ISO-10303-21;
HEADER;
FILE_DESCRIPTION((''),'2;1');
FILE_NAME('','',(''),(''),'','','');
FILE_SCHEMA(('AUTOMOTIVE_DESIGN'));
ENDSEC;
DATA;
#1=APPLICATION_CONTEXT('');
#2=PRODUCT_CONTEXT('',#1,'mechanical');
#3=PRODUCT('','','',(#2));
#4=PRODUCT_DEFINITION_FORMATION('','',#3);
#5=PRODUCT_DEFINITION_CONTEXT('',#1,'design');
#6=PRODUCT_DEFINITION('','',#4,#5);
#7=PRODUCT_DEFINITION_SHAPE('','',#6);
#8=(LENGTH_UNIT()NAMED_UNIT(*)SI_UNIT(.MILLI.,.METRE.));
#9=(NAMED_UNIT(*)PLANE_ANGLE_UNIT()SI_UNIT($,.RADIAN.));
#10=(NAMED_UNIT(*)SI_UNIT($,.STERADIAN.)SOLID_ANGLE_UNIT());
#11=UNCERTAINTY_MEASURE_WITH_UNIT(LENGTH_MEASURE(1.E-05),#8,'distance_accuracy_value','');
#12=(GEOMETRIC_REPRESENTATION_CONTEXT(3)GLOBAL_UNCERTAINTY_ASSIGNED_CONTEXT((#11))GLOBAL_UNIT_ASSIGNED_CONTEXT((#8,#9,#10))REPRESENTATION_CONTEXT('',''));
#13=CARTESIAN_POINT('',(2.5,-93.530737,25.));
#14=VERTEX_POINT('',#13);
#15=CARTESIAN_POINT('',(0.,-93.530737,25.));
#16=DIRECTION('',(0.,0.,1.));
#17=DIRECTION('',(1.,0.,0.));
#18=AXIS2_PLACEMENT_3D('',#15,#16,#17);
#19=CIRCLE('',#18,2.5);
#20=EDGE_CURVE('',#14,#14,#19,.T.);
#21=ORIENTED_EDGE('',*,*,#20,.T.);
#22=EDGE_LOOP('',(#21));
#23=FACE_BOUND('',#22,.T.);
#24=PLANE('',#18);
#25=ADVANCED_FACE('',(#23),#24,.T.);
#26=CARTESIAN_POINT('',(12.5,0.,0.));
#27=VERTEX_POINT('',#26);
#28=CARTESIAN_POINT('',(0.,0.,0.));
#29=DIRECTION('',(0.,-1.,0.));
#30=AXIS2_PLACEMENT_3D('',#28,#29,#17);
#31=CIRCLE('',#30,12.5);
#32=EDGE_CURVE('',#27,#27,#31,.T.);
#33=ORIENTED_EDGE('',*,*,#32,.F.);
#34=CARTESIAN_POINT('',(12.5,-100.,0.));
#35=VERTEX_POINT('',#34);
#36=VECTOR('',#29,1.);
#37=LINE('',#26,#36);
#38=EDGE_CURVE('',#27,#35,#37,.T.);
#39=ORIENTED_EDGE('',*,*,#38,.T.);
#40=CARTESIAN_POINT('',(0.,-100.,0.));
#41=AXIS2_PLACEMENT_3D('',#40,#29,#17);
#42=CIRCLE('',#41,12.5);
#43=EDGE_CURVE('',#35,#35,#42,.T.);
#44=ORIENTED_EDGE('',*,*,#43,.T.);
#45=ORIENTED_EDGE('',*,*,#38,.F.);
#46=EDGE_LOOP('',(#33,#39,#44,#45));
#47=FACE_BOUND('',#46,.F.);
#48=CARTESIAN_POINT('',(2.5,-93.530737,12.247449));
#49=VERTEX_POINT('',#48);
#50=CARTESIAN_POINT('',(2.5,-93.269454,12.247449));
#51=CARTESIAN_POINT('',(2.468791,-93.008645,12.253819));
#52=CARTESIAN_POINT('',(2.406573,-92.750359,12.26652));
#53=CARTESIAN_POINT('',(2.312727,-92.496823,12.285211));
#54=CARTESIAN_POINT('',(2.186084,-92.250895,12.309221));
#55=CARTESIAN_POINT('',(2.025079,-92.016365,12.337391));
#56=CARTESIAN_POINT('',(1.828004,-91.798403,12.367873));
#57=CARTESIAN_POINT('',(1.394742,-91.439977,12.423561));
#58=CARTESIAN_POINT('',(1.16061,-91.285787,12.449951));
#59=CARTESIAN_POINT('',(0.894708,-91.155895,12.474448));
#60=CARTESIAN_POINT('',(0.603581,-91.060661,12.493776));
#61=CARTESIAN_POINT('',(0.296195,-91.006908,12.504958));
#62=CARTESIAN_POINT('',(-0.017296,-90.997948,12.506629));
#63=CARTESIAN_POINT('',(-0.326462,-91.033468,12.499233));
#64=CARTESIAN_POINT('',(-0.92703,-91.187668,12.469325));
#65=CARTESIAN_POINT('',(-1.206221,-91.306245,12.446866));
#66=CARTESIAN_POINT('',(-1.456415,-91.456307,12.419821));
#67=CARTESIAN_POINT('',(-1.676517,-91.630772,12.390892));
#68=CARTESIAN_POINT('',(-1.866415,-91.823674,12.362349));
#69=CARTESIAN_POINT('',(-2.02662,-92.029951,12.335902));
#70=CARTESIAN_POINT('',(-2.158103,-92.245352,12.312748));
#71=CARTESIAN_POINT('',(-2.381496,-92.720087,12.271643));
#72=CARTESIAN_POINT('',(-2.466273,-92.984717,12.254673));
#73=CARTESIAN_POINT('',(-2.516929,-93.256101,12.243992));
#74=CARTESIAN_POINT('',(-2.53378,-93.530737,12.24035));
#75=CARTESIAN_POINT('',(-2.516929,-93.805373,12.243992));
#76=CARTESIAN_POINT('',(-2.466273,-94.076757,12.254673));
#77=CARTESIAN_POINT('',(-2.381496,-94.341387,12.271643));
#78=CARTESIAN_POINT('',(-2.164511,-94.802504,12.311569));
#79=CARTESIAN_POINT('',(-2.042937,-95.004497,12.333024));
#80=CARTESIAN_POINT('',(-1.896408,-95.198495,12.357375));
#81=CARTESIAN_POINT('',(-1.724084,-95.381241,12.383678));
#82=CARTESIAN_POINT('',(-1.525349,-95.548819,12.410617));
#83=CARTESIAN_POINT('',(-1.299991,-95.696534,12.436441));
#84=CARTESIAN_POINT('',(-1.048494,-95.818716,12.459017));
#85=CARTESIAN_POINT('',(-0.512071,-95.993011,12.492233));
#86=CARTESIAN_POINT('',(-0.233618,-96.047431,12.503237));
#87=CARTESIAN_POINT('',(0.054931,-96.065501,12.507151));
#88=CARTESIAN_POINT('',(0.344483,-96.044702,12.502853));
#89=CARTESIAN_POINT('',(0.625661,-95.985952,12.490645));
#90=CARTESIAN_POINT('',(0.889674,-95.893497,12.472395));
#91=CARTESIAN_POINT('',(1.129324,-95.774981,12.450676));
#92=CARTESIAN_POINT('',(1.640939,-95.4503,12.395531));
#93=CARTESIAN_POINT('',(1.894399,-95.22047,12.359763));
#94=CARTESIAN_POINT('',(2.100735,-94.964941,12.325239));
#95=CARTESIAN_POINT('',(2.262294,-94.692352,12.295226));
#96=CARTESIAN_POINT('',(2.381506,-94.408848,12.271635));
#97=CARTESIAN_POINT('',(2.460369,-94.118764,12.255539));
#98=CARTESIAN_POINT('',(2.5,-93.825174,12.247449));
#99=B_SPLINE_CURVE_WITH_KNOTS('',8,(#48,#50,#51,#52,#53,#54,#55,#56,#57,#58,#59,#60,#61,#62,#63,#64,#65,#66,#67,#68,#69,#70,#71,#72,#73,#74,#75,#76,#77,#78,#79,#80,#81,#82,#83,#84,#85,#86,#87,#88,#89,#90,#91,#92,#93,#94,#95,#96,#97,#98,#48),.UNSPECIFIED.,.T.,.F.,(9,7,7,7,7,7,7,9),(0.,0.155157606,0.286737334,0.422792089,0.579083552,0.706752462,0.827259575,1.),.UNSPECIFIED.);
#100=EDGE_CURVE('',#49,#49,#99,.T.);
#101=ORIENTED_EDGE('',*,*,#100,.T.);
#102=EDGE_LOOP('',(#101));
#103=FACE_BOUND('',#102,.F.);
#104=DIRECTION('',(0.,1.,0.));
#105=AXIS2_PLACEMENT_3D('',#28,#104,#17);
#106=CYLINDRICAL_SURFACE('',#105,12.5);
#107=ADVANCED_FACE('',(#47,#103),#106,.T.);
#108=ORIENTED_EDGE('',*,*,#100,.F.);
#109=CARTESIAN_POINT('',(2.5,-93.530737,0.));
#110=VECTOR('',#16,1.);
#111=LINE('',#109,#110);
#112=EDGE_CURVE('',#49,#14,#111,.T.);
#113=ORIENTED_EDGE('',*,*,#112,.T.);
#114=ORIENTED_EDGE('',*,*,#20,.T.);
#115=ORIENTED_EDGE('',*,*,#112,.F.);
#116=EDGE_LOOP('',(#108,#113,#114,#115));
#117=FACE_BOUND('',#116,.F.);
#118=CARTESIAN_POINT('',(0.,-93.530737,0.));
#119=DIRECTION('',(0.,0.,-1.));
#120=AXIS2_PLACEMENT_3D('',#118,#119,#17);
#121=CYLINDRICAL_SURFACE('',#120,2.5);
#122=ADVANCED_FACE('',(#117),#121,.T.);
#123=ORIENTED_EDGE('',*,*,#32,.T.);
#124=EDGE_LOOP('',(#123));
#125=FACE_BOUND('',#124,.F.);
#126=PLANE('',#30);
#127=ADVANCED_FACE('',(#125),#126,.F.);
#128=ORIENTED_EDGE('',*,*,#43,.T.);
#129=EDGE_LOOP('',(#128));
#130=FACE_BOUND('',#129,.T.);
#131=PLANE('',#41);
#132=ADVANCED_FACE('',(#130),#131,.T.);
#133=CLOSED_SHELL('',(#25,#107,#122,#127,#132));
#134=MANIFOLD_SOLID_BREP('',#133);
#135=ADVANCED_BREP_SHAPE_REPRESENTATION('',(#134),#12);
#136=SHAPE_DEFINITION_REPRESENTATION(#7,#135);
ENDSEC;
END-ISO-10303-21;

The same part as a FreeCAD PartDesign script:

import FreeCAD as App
import Part
import Sketcher
Q = App.Units.Quantity

doc = App.newDocument("Part")
params = doc.addObject("Spreadsheet::Sheet", "Params")
for row, (alias, value) in enumerate([
    ("sketch1_diameter", "25 mm"),
    ("pad1_length", "100 mm"),
    ("sketch2_diameter", "5 mm"),
    ("pad2_length", "25 mm"),
], start=1):
    params.set(f"A{row}", alias)
    params.set(f"B{row}", "=" + value)
    params.setAlias(f"B{row}", alias)

body = doc.addObject("PartDesign::Body", "Body")

# Sketch on XZ plane
sketch1 = body.newObject("Sketcher::SketchObject", "Sketch")
sketch1.AttachmentSupport = (doc.getObject("XZ_Plane"), [""])
sketch1.MapMode = "FlatFace"
sketch1.addGeometry(Part.Circle(App.Vector(0, 0, 0), App.Vector(0, 0, 1), 12), False)
sketch1.addConstraint([
    Sketcher.Constraint("Coincident", 0, 3, -1, 1),
    Sketcher.Constraint("Diameter", 0, Q("25 mm")),
])
sketch1.setExpression("Constraints[1]", "Params.sketch1_diameter")
pad1 = body.newObject("PartDesign::Pad", "Pad")
pad1.Profile = sketch1
pad1.setExpression("Length", "Params.pad1_length")

# Sketch on XY plane
sketch2 = body.newObject("Sketcher::SketchObject", "Sketch001")
sketch2.AttachmentSupport = (doc.getObject("XY_Plane"), [""])
sketch2.MapMode = "FlatFace"
sketch2.addGeometry(Part.Circle(App.Vector(0, -93.5, 0), App.Vector(0, 0, 1), 2.5), False)
sketch2.addConstraint([
    Sketcher.Constraint("PointOnObject", 0, 3, -2),
    Sketcher.Constraint("Diameter", 0, Q("5 mm")),
    Sketcher.Constraint("DistanceY", 0, 3, -1, 1, Q("93.530737 mm")),
])
sketch2.setExpression("Constraints[1]", "Params.sketch2_diameter")
pad2 = body.newObject("PartDesign::Pad", "Pad001")
pad2.Profile = sketch2
pad2.setExpression("Length", "Params.pad2_length")

doc.recompute()
